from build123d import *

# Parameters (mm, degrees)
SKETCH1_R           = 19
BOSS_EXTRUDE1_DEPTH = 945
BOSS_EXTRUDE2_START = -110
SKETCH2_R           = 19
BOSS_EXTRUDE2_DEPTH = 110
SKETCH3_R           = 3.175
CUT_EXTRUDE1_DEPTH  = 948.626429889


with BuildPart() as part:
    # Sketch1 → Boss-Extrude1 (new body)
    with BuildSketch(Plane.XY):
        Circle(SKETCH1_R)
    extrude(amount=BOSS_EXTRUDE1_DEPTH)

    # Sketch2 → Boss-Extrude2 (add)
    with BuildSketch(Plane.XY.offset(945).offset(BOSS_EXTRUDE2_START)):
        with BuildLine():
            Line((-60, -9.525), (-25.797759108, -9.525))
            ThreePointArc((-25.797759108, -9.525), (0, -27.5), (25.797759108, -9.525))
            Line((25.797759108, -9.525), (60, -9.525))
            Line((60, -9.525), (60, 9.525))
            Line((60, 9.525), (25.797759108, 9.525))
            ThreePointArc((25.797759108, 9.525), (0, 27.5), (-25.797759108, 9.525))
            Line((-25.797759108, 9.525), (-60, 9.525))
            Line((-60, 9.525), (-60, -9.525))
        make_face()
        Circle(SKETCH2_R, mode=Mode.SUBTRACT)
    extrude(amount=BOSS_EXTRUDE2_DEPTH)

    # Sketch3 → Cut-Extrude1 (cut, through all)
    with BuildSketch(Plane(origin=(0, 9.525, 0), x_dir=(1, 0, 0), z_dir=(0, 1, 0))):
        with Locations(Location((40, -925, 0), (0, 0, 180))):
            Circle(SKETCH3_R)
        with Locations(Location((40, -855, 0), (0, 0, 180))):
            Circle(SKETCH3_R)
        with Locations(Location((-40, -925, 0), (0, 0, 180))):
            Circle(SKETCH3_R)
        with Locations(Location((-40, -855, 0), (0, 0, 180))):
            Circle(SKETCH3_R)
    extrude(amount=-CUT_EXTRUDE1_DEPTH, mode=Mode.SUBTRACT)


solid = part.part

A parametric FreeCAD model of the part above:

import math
import FreeCAD as App
import Part
import Sketcher
from FreeCAD import Vector

doc = App.newDocument("Part")
body = doc.addObject("PartDesign::Body", "Body")

sketch1 = body.newObject("Sketcher::SketchObject", "Sketch")
sketch1.AttachmentSupport = (doc.getObject("XY_Plane"), [""])
sketch1.MapMode = "FlatFace"
sketch1.addGeometry(Part.Circle(Vector(0, 0, 0), Vector(0, 0, 1), 19), False)
sketch1.addConstraint([
    Sketcher.Constraint("Coincident", 0, 3, -1, 1),
    Sketcher.Constraint("Diameter", 0, 38.0),
])
pad1 = body.newObject("PartDesign::Pad", "Pad")
pad1.Profile = sketch1
pad1.Length = 945

sketch2 = body.newObject("Sketcher::SketchObject", "Sketch001")
sketch2.AttachmentSupport = (doc.getObject("XY_Plane"), [""])
sketch2.MapMode = "FlatFace"
sketch2.AttachmentOffset = App.Placement(Vector(0, 0, 835), App.Rotation())
sketch2.addGeometry([
    Part.LineSegment(Vector(-60, -10, 0), Vector(-26, -10, 0)),
    Part.ArcOfCircle(Part.Circle(Vector(0, 0, 0), Vector(0, 0, 1), 28), math.radians(-160), math.radians(-20)),
    Part.LineSegment(Vector(26, -10, 0), Vector(60, -10, 0)),
    Part.LineSegment(Vector(60, -10, 0), Vector(60, 10, 0)),
    Part.LineSegment(Vector(60, 10, 0), Vector(26, 10, 0)),
    Part.ArcOfCircle(Part.Circle(Vector(0, 0, 0), Vector(0, 0, 1), 28), math.radians(20), math.radians(160)),
    Part.LineSegment(Vector(-26, 10, 0), Vector(-60, 10, 0)),
    Part.LineSegment(Vector(-60, 10, 0), Vector(-60, -10, 0)),
    Part.Circle(Vector(0, 0, 0), Vector(0, 0, 1), 19),
], False)
sketch2.addConstraint([
    Sketcher.Constraint("Coincident", 0, 2, 1, 1),
    Sketcher.Constraint("Coincident", 1, 2, 2, 1),
    Sketcher.Constraint("Coincident", 2, 2, 3, 1),
    Sketcher.Constraint("Coincident", 3, 2, 4, 1),
    Sketcher.Constraint("Coincident", 4, 2, 5, 1),
    Sketcher.Constraint("Coincident", 5, 2, 6, 1),
    Sketcher.Constraint("Coincident", 6, 2, 7, 1),
    Sketcher.Constraint("Coincident", 7, 2, 0, 1),
    Sketcher.Constraint("Horizontal", 0),
    Sketcher.Constraint("Horizontal", 2),
    Sketcher.Constraint("Vertical", 3),
    Sketcher.Constraint("Horizontal", 4),
    Sketcher.Constraint("Horizontal", 6),
    Sketcher.Constraint("Vertical", 7),
    Sketcher.Constraint("Coincident", 1, 3, -1, 1),
    Sketcher.Constraint("Coincident", 5, 3, -1, 1),
    Sketcher.Constraint("Coincident", 8, 3, -1, 1),
    Sketcher.Constraint("Equal", 1, 5),
    Sketcher.Constraint("Symmetric", 2, 2, 6, 2, -1, 1),
    Sketcher.Constraint("Horizontal", 0, 2, 1, 2),
    Sketcher.Constraint("Horizontal", 4, 2, 5, 2),
    Sketcher.Constraint("Diameter", 8, 38.0),
    Sketcher.Constraint("Radius", 1, 27.5),
    Sketcher.Constraint("DistanceX", -1, 1, 2, 2, 60.0),
    Sketcher.Constraint("DistanceY", 3, 1, 3, 2, 19.05),
])
pad2 = body.newObject("PartDesign::Pad", "Pad001")
pad2.Profile = sketch2
pad2.Length = 110

sketch3 = body.newObject("Sketcher::SketchObject", "Sketch002")
sketch3.AttachmentSupport = (doc.getObject("XZ_Plane"), [""])
sketch3.MapMode = "FlatFace"
sketch3.AttachmentOffset = App.Placement(Vector(0, 0, -9.525), App.Rotation())
sketch3.addGeometry([
    Part.Circle(Vector(40, 925, 0), Vector(0, 0, 1), 3.2),
    Part.Circle(Vector(40, 855, 0), Vector(0, 0, 1), 3.2),
    Part.Circle(Vector(-40, 925, 0), Vector(0, 0, 1), 3.2),
    Part.Circle(Vector(-40, 855, 0), Vector(0, 0, 1), 3.2),
], False)
sketch3.addConstraint([
    Sketcher.Constraint("Equal", 0, 1),
    Sketcher.Constraint("Equal", 1, 2),
    Sketcher.Constraint("Equal", 2, 3),
    Sketcher.Constraint("Symmetric", 0, 3, 2, 3, -2),
    Sketcher.Constraint("Symmetric", 1, 3, 3, 3, -2),
    Sketcher.Constraint("Vertical", 0, 3, 1, 3),
    Sketcher.Constraint("Diameter", 0, 6.35),
    Sketcher.Constraint("DistanceX", -1, 1, 0, 3, 40.0),
    Sketcher.Constraint("DistanceY", -1, 1, 0, 3, 925.0),
    Sketcher.Constraint("DistanceY", -1, 1, 1, 3, 855.0),
])
pocket1 = body.newObject("PartDesign::Pocket", "Pocket")
pocket1.Profile = sketch3
pocket1.Type = "ThroughAll"
pocket1.Reversed = True

doc.recompute()
